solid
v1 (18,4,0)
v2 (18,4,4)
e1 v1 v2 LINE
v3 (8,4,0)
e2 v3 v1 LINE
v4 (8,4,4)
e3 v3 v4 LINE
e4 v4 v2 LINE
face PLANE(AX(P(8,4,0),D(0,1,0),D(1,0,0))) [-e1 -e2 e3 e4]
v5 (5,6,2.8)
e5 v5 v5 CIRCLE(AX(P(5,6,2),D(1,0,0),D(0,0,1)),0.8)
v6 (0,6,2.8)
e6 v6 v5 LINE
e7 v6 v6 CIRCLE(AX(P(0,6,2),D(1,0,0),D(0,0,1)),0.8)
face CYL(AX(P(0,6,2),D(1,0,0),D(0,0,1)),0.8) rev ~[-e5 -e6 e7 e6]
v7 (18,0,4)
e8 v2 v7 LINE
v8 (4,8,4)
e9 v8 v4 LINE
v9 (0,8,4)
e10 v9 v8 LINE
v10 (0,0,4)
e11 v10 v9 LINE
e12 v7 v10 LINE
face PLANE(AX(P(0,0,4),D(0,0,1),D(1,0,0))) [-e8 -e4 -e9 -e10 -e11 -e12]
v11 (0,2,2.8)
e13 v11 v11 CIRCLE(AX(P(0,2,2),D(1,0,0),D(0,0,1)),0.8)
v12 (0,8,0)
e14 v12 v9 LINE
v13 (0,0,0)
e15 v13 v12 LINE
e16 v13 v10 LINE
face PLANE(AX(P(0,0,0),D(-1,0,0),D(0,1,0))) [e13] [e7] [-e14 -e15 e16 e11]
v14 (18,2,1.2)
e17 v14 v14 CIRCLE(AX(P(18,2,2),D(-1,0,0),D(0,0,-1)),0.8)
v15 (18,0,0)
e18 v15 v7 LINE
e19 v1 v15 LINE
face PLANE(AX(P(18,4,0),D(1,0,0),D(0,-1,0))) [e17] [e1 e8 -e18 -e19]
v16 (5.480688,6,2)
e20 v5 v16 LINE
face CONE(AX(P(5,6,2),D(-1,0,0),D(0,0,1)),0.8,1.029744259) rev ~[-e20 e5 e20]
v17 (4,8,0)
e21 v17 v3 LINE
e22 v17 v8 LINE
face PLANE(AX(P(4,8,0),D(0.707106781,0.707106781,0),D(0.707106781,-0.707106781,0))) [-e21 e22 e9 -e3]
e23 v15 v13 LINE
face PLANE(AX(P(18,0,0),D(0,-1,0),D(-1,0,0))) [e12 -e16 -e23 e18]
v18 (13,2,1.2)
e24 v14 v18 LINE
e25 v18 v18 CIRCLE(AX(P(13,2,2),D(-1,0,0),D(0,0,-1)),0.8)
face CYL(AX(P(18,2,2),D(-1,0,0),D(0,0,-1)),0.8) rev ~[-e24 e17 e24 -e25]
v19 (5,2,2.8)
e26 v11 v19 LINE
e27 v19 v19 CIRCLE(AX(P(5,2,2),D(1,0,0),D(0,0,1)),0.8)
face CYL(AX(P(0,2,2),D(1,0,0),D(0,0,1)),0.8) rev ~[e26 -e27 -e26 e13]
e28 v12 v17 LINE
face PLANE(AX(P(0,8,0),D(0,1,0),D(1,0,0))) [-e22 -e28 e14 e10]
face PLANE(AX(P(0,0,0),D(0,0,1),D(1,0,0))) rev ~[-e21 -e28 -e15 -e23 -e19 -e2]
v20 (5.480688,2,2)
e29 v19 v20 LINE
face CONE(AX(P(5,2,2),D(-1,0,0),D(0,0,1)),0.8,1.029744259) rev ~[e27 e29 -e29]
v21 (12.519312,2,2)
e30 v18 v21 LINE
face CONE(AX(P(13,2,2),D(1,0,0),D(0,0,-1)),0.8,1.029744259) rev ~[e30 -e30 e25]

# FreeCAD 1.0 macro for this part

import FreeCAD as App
import Part
import Sketcher
Q = App.Units.Quantity

doc = App.newDocument("Part")
params = doc.addObject("Spreadsheet::Sheet", "Params")
for row, (alias, value) in enumerate([
    ("sketch1_width", "18 mm"),
    ("sketch1_width2", "4 mm"),
    ("sketch1_height", "8 mm"),
    ("pad1_length", "4 mm"),
    ("sketch2_diameter", "1.6 mm"),
    ("hole_diameter", "1.6 mm"),
    ("hole_depth", "5 mm"),
    ("sketch3_diameter", "1.6 mm"),
    ("hole2_diameter", "1.6 mm"),
    ("hole2_depth", "5 mm"),
], start=1):
    params.set(f"A{row}", alias)
    params.set(f"B{row}", "=" + value)
    params.setAlias(f"B{row}", alias)

body = doc.addObject("PartDesign::Body", "Body")

# Sketch on XY plane
sketch1 = doc.addObject("Sketcher::SketchObject", "Sketch")
body.addObject(sketch1)
sketch1.AttachmentSupport = (doc.XY_Plane, [""])
sketch1.MapMode = "FlatFace"
sketch1.addGeometry([
    Part.LineSegment(App.Vector(0, 8, 0), App.Vector(0, 0, 0)),  # 0
    Part.LineSegment(App.Vector(0, 0, 0), App.Vector(18, 0, 0)),  # 1
    Part.LineSegment(App.Vector(18, 0, 0), App.Vector(18, 4, 0)),  # 2
    Part.LineSegment(App.Vector(18, 4, 0), App.Vector(8, 4, 0)),  # 3
    Part.LineSegment(App.Vector(8, 4, 0), App.Vector(4, 8, 0)),  # 4
    Part.LineSegment(App.Vector(4, 8, 0), App.Vector(0, 8, 0)),  # 5
], False)
sketch1.addConstraint([
    Sketcher.Constraint("Coincident", 0, 2, 1, 1),
    Sketcher.Constraint("Coincident", 1, 2, 2, 1),
    Sketcher.Constraint("Coincident", 2, 2, 3, 1),
    Sketcher.Constraint("Coincident", 3, 2, 4, 1),
    Sketcher.Constraint("Coincident", 4, 2, 5, 1),
    Sketcher.Constraint("Coincident", 5, 2, 0, 1),
    Sketcher.Constraint("Vertical", 0),
    Sketcher.Constraint("Horizontal", 1),
    Sketcher.Constraint("Vertical", 2),
    Sketcher.Constraint("Horizontal", 3),
    Sketcher.Constraint("Horizontal", 5),
    Sketcher.Constraint("Coincident", 0, 2, -1, 1),
    Sketcher.Constraint("Equal", 5, 2),
    Sketcher.Constraint("DistanceX", 1, 1, 1, 2, Q("18 mm")),
    Sketcher.Constraint("DistanceX", 5, 2, 5, 1, Q("4 mm")),
    Sketcher.Constraint("DistanceY", 0, 2, 0, 1, Q("8 mm")),
    Sketcher.Constraint("DistanceX", -1, 1, 3, 2, Q("8 mm")),
])
sketch1.setExpression("Constraints[13]", "Params.sketch1_width")
sketch1.setExpression("Constraints[14]", "Params.sketch1_width2")
sketch1.setExpression("Constraints[15]", "Params.sketch1_height")
pad1 = doc.addObject("PartDesign::Pad", "Pad")
body.addObject(pad1)
pad1.Profile = sketch1
pad1.setExpression("Length", "Params.pad1_length")

# Sketch on YZ plane
sketch2 = doc.addObject("Sketcher::SketchObject", "Sketch001")
body.addObject(sketch2)
sketch2.AttachmentSupport = (doc.YZ_Plane, [""])
sketch2.MapMode = "FlatFace"
sketch2.addGeometry([
    Part.Circle(App.Vector(2, 2, 0), App.Vector(0, 0, 1), 0.8),
    Part.Circle(App.Vector(6, 2, 0), App.Vector(0, 0, 1), 0.8),
], False)
sketch2.addConstraint([
    Sketcher.Constraint("Equal", 0, 1),
    Sketcher.Constraint("Horizontal", 0, 3, 1, 3),
    Sketcher.Constraint("Diameter", 0, Q("1.6 mm")),
    Sketcher.Constraint("DistanceX", -1, 1, 0, 3, Q("2 mm")),
    Sketcher.Constraint("DistanceY", -1, 1, 0, 3, Q("2 mm")),
    Sketcher.Constraint("DistanceX", -1, 1, 1, 3, Q("6 mm")),
])
sketch2.setExpression("Constraints[2]", "Params.sketch2_diameter")
doc.recompute()
hole = doc.addObject("PartDesign::Hole", "Hole")
body.addObject(hole)
hole.Profile = sketch2
hole.ThreadType = "None"
hole.setExpression("Diameter", "Params.hole_diameter")
hole.DepthType = "Dimension"
hole.setExpression("Depth", "Params.hole_depth")
hole.DrillPoint = "Angled"
hole.DrillPointAngle = 118
hole.Reversed = True

# Sketch on YZ plane
sketch3 = doc.addObject("Sketcher::SketchObject", "Sketch002")
body.addObject(sketch3)
sketch3.AttachmentSupport = (doc.YZ_Plane, [""])
sketch3.MapMode = "FlatFace"
sketch3.AttachmentOffset = App.Placement(App.Vector(0, 0, 18), App.Rotation())
sketch3.addGeometry(Part.Circle(App.Vector(2, 2, 0), App.Vector(0, 0, 1), 0.8), False)
sketch3.addConstraint([
    Sketcher.Constraint("Diameter", 0, Q("1.6 mm")),
    Sketcher.Constraint("DistanceX", -1, 1, 0, 3, Q("2 mm")),
    Sketcher.Constraint("DistanceY", -1, 1, 0, 3, Q("2 mm")),
])
sketch3.setExpression("Constraints[0]", "Params.sketch3_diameter")
doc.recompute()
hole2 = doc.addObject("PartDesign::Hole", "Hole001")
body.addObject(hole2)
hole2.Profile = sketch3
hole2.ThreadType = "None"
hole2.setExpression("Diameter", "Params.hole2_diameter")
hole2.DepthType = "Dimension"
hole2.setExpression("Depth", "Params.hole2_depth")
hole2.DrillPoint = "Angled"
hole2.DrillPointAngle = 118

doc.recompute()
